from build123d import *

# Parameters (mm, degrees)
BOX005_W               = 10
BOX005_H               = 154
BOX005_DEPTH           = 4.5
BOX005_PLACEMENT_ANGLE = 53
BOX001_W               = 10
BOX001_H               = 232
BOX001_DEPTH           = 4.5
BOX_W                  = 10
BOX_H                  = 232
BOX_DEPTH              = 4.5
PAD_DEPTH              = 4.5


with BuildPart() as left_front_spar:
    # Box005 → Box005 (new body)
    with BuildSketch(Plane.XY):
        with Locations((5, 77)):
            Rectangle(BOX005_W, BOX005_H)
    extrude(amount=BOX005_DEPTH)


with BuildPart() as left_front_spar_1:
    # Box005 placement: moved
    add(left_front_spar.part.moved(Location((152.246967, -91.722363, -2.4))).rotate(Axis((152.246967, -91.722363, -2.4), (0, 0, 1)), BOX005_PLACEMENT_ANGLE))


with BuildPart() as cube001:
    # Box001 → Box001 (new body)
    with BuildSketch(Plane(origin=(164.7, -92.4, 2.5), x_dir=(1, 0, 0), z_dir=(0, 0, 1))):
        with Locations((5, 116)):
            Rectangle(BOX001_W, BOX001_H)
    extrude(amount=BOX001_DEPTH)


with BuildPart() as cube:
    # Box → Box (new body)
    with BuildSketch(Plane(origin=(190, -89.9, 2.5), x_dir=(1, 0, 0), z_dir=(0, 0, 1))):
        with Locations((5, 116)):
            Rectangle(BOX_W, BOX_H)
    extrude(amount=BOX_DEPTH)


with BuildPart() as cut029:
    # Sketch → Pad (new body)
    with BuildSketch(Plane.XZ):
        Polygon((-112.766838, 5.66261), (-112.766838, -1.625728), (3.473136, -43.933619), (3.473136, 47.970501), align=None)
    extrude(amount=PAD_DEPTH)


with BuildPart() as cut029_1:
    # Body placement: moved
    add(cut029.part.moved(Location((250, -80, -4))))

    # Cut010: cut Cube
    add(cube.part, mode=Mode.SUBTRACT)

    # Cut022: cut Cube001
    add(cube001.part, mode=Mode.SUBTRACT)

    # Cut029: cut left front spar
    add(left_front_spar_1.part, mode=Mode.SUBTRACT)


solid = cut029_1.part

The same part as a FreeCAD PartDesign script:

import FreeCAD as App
import Part
import Sketcher
from FreeCAD import Vector
Q = App.Units.Quantity


def add_polygon(sketch, points):
    """Adds a closed chain of lines whose ends are joined by coincident constraints."""
    first, n = sketch.GeometryCount, len(points)
    for a, b in zip(points, points[1:] + points[:1]):
        sketch.addGeometry(Part.LineSegment(App.Vector(*a, 0), App.Vector(*b, 0)), False)
    for i in range(n):
        sketch.addConstraint(Sketcher.Constraint("Coincident", first + i, 2, first + (i + 1) % n, 1))

doc = App.newDocument("Part")
params = doc.addObject("Spreadsheet::Sheet", "Params")
for row, (alias, value) in enumerate([
    ("sketch1_width", "10 mm"),
    ("sketch1_height", "154 mm"),
    ("pad1_length", "4.5 mm"),
    ("sketch2_width", "10 mm"),
    ("sketch2_height", "232 mm"),
    ("pad2_length", "4.5 mm"),
    ("sketch3_width", "10 mm"),
    ("sketch3_height", "232 mm"),
    ("pad3_length", "4.5 mm"),
    ("pad4_length", "4.5 mm"),
], start=1):
    params.set(f"A{row}", alias)
    params.set(f"B{row}", "=" + value)
    params.setAlias(f"B{row}", alias)

body = doc.addObject("PartDesign::Body", "Body")

sketch1 = body.newObject("Sketcher::SketchObject", "Sketch")
sketch1.AttachmentSupport = (doc.getObject("XY_Plane"), [""])
sketch1.MapMode = "FlatFace"
add_polygon(sketch1, [(0, 154), (0, 0), (10, 0), (10, 154)])
sketch1.addConstraint([
    Sketcher.Constraint("Vertical", 0),
    Sketcher.Constraint("Horizontal", 1),
    Sketcher.Constraint("Vertical", 2),
    Sketcher.Constraint("Horizontal", 3),
    Sketcher.Constraint("Coincident", 0, 2, -1, 1),
    Sketcher.Constraint("DistanceX", 1, 1, 1, 2, 10.0),
    Sketcher.Constraint("DistanceY", 0, 2, 0, 1, 154.0),
])
sketch1.setExpression("Constraints[9]", "Params.sketch1_width")
sketch1.setExpression("Constraints[10]", "Params.sketch1_height")
pad1 = body.newObject("PartDesign::Pad", "Pad")
pad1.Profile = sketch1
pad1.setExpression("Length", "Params.pad1_length")
body2 = doc.addObject("PartDesign::Body", "Body001")
doc.recompute()

body.Placement = App.Placement(Vector(152.246967, -91.722363, -2.4), App.Rotation(Vector(0, 0, 1), 53))
boolean = body2.newObject("PartDesign::Boolean", "Boolean")
boolean.Type = "Fuse"
boolean.addObjects([body])
body3 = doc.addObject("PartDesign::Body", "Body002")

sketch2 = body3.newObject("Sketcher::SketchObject", "Sketch001")
sketch2.AttachmentSupport = (doc.getObject("XY_Plane002"), [""])
sketch2.MapMode = "FlatFace"
sketch2.AttachmentOffset = App.Placement(Vector(0, 0, 2.5), App.Rotation())
add_polygon(sketch2, [(165, 140), (165, -92), (175, -92), (175, 140)])
sketch2.addConstraint([
    Sketcher.Constraint("Vertical", 0),
    Sketcher.Constraint("Horizontal", 1),
    Sketcher.Constraint("Vertical", 2),
    Sketcher.Constraint("Horizontal", 3),
    Sketcher.Constraint("DistanceX", 1, 1, 1, 2, 10.0),
    Sketcher.Constraint("DistanceY", 0, 2, 0, 1, 232.0),
    Sketcher.Constraint("DistanceX", -1, 1, 0, 2, 164.7),
    Sketcher.Constraint("DistanceY", 0, 2, -1, 1, 92.4),
])
sketch2.setExpression("Constraints[8]", "Params.sketch2_width")
sketch2.setExpression("Constraints[9]", "Params.sketch2_height")
pad2 = body3.newObject("PartDesign::Pad", "Pad001")
pad2.Profile = sketch2
pad2.setExpression("Length", "Params.pad2_length")
body4 = doc.addObject("PartDesign::Body", "Body003")

sketch3 = body4.newObject("Sketcher::SketchObject", "Sketch002")
sketch3.AttachmentSupport = (doc.getObject("XY_Plane003"), [""])
sketch3.MapMode = "FlatFace"
sketch3.AttachmentOffset = App.Placement(Vector(0, 0, 2.5), App.Rotation())
add_polygon(sketch3, [(190, 142), (190, -90), (200, -90), (200, 142)])
sketch3.addConstraint([
    Sketcher.Constraint("Vertical", 0),
    Sketcher.Constraint("Horizontal", 1),
    Sketcher.Constraint("Vertical", 2),
    Sketcher.Constraint("Horizontal", 3),
    Sketcher.Constraint("DistanceX", 1, 1, 1, 2, 10.0),
    Sketcher.Constraint("DistanceY", 0, 2, 0, 1, 232.0),
    Sketcher.Constraint("DistanceX", -1, 1, 0, 2, 190.0),
    Sketcher.Constraint("DistanceY", 0, 2, -1, 1, 89.9),
])
sketch3.setExpression("Constraints[8]", "Params.sketch3_width")
sketch3.setExpression("Constraints[9]", "Params.sketch3_height")
pad3 = body4.newObject("PartDesign::Pad", "Pad002")
pad3.Profile = sketch3
pad3.setExpression("Length", "Params.pad3_length")
body5 = doc.addObject("PartDesign::Body", "Body004")

sketch4 = body5.newObject("Sketcher::SketchObject", "Sketch003")
sketch4.AttachmentSupport = (doc.getObject("XZ_Plane004"), [""])
sketch4.MapMode = "FlatFace"
add_polygon(sketch4, [(-113, 6), (-113, -2), (3, -44), (3, 48)])
sketch4.addConstraint([
    Sketcher.Constraint("Vertical", 0),
    Sketcher.Constraint("Vertical", 2),
    Sketcher.Constraint("Equal", 1, 3),
    Sketcher.Constraint("Angle", 1, Q("-20 deg")),
    Sketcher.Constraint("DistanceY", 2, 1, 2, 2, 91.90412),
    Sketcher.Constraint("DistanceY", -1, 1, 2, 2, 47.970501),
    Sketcher.Constraint("DistanceY", 0, 2, 0, 1, 7.288338),
    Sketcher.Constraint("DistanceX", 0, 2, -1, 1, 112.766838),
])
pad4 = body5.newObject("PartDesign::Pad", "Pad003")
pad4.Profile = sketch4
pad4.setExpression("Length", "Params.pad4_length")
body6 = doc.addObject("PartDesign::Body", "Body005")
doc.recompute()

body5.Placement = App.Placement(Vector(250, -80, -4), App.Rotation(Vector(0, 0, 1), 0))
boolean2 = body6.newObject("PartDesign::Boolean", "Boolean001")
boolean2.Type = "Fuse"
boolean2.addObjects([body5])
doc.recompute()

boolean3 = body6.newObject("PartDesign::Boolean", "Boolean002")
boolean3.Type = "Cut"
boolean3.addObjects([body4])
doc.recompute()

boolean4 = body6.newObject("PartDesign::Boolean", "Boolean003")
boolean4.Type = "Cut"
boolean4.addObjects([body3])
doc.recompute()

boolean5 = body6.newObject("PartDesign::Boolean", "Boolean004")
boolean5.Type = "Cut"
boolean5.addObjects([body2])

doc.recompute()
